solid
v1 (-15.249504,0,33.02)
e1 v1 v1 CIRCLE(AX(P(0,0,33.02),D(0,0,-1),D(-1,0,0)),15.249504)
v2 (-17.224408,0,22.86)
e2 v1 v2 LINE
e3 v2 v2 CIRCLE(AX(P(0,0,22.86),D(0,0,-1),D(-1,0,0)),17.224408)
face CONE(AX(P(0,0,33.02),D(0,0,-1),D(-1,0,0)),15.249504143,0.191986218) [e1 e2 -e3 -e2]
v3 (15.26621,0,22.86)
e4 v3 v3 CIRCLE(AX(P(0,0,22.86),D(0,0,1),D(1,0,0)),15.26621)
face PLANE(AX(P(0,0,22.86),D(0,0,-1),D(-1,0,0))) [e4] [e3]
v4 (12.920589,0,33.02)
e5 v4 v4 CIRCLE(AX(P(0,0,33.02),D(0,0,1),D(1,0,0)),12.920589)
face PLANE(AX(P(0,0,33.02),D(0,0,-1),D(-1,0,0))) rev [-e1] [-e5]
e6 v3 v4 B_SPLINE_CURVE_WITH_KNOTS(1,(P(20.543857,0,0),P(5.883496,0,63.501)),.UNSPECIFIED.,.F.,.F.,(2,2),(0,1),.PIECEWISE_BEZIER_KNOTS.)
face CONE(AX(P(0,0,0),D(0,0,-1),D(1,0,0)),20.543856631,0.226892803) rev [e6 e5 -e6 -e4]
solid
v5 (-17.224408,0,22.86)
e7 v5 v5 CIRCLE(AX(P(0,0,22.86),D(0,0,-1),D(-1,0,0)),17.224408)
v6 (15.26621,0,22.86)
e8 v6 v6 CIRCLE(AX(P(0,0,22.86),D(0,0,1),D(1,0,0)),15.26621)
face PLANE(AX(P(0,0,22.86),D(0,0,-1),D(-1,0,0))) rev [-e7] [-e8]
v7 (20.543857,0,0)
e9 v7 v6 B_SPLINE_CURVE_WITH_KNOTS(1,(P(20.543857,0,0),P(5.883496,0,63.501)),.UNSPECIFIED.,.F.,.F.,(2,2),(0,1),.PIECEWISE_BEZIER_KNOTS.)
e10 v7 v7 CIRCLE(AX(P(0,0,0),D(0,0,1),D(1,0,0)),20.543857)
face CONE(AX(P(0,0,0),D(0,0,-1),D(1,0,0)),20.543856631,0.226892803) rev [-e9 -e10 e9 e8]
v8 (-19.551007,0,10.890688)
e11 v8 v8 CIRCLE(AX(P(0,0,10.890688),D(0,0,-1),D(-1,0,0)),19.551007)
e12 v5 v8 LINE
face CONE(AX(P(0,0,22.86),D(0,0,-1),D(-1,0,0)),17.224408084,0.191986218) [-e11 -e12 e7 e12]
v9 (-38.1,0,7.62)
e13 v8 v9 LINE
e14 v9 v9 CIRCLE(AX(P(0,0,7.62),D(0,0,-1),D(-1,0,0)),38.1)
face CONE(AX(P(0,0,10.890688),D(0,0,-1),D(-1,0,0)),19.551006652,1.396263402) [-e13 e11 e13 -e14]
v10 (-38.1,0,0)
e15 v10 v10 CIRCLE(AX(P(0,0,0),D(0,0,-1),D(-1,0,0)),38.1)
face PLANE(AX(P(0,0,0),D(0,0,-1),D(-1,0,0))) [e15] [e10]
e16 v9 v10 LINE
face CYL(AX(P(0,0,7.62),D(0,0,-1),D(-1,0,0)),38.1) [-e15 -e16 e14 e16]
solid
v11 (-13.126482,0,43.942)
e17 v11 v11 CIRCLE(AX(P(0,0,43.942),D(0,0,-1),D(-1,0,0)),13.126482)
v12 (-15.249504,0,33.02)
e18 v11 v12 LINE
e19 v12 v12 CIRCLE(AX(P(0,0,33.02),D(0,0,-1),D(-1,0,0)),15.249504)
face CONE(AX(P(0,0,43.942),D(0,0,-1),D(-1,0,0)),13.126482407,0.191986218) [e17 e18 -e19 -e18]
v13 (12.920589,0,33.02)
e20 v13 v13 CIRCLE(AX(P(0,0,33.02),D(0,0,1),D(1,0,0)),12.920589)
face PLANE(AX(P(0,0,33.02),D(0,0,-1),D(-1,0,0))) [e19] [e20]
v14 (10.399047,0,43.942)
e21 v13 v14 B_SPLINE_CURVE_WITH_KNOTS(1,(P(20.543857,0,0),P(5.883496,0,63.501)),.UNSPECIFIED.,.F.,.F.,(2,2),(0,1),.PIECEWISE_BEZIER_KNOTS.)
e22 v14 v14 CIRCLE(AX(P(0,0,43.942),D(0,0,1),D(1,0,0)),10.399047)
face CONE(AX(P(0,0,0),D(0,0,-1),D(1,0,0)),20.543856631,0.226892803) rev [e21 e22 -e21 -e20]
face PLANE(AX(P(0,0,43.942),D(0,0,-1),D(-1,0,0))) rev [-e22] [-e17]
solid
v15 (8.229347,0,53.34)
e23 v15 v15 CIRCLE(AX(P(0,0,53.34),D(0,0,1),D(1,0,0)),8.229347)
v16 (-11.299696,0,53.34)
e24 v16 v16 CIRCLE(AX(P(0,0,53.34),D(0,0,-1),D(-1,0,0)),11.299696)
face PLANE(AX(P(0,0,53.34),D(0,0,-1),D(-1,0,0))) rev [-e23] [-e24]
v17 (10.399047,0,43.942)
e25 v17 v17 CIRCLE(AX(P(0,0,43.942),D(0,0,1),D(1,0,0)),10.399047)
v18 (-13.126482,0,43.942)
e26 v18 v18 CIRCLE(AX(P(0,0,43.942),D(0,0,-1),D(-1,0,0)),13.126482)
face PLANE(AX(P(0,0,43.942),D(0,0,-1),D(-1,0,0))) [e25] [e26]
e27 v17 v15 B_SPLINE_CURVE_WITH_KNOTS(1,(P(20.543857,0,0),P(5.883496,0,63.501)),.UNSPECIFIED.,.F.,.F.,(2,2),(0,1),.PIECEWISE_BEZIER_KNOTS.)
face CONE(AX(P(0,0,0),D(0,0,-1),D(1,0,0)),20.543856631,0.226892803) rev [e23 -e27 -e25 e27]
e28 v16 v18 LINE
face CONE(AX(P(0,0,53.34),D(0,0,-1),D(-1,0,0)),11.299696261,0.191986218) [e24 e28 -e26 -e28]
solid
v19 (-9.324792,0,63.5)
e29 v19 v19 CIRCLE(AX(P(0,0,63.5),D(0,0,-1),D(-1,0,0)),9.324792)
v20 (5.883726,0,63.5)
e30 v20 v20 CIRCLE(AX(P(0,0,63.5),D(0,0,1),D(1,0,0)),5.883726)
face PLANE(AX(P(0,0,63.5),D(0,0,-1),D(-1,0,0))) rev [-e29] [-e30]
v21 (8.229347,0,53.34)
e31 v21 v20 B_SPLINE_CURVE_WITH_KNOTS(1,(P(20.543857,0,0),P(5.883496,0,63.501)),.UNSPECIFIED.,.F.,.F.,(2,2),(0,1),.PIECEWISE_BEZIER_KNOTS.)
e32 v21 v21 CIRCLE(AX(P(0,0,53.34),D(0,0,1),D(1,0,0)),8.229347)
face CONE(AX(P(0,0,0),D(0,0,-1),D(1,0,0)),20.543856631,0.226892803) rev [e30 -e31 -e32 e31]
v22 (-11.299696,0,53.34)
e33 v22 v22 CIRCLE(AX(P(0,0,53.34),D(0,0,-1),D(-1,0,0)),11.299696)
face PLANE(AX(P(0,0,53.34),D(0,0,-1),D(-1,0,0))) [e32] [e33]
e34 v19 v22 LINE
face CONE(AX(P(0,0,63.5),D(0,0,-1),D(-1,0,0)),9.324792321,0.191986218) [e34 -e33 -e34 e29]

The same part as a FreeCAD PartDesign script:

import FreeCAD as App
import Part
import Sketcher
from FreeCAD import Vector
Q = App.Units.Quantity


def add_polygon(sketch, points):
    """Adds a closed chain of lines whose ends are joined by coincident constraints."""
    first, n = sketch.GeometryCount, len(points)
    for a, b in zip(points, points[1:] + points[:1]):
        sketch.addGeometry(Part.LineSegment(App.Vector(*a, 0), App.Vector(*b, 0)), False)
    for i in range(n):
        sketch.addConstraint(Sketcher.Constraint("Coincident", first + i, 2, first + (i + 1) % n, 1))

doc = App.newDocument("Part")
params = doc.addObject("Spreadsheet::Sheet", "Params")
for row, (alias, value) in enumerate([
    ("sketch1_height", "0.4 in"),
    ("revolution_angle", "360 deg"),
    ("sketch2_height", "0.37 in"),
    ("revolution2_angle", "360 deg"),
    ("sketch3_height", "0.43 in"),
    ("revolution3_angle", "360 deg"),
    ("sketch4_height", "0.4 in"),
    ("revolution4_angle", "360 deg"),
    ("sketch5_width", "1.5 in"),
    ("sketch5_height", "0.3 in"),
    ("sketch5_height2", "0.9 in"),
    ("revolution5_angle", "360 deg"),
    ("pad1_length", "63.501 mm"),
    ("pad1_taper", "-13 deg"),
], start=1):
    params.set(f"A{row}", alias)
    params.set(f"B{row}", "=" + value)
    params.setAlias(f"B{row}", alias)

body = doc.addObject("PartDesign::Body", "Body")

# Sketch on XZ plane
sketch1 = doc.addObject("Sketcher::SketchObject", "Sketch")
body.addObject(sketch1)
sketch1.AttachmentSupport = (doc.XZ_Plane, [""])
sketch1.MapMode = "FlatFace"
add_polygon(sketch1, [(-11.299696, 53.34), (0, 53.34), (0, 63.5), (-9.324792, 63.5)])  # lines 0-3
sketch1.addConstraint([
    Sketcher.Constraint("Horizontal", 0),
    Sketcher.Constraint("Vertical", 1),
    Sketcher.Constraint("Horizontal", 2),
    Sketcher.Constraint("PointOnObject", 0, 2, -2),
    Sketcher.Constraint("DistanceY", 1, 1, 1, 2, Q("0.4 in")),
    Sketcher.Constraint("Angle", 3, Q("-101 deg")),
    Sketcher.Constraint("DistanceY", -1, 1, 0, 2, Q("2.1 in")),
    Sketcher.Constraint("DistanceX", 0, 1, 0, 2, Q("11.299696 mm")),
])
sketch1.setExpression("Constraints[8]", "Params.sketch1_height")
revolution = doc.addObject("PartDesign::Revolution", "Revolution")
body.addObject(revolution)
revolution.Profile = sketch1
revolution.ReferenceAxis = (sketch1, ["V_Axis"])
revolution.setExpression("Angle", "Params.revolution_angle")
body2 = doc.addObject("PartDesign::Body", "Body001")

# Sketch on XZ plane
sketch2 = doc.addObject("Sketcher::SketchObject", "Sketch001")
body2.addObject(sketch2)
sketch2.AttachmentSupport = (doc.getObject("XZ_Plane001"), [""])
sketch2.MapMode = "FlatFace"
add_polygon(sketch2, [(-13.126482, 43.942), (0, 43.942), (0, 53.34), (-11.299696, 53.34)])  # lines 0-3
sketch2.addConstraint([
    Sketcher.Constraint("Horizontal", 0),
    Sketcher.Constraint("Vertical", 1),
    Sketcher.Constraint("Horizontal", 2),
    Sketcher.Constraint("PointOnObject", 0, 2, -2),
    Sketcher.Constraint("Angle", 3, Q("-101 deg")),
    Sketcher.Constraint("DistanceY", 1, 1, 1, 2, Q("0.37 in")),
    Sketcher.Constraint("DistanceY", -1, 1, 1, 2, Q("2.1 in")),
    Sketcher.Constraint("DistanceX", 0, 1, 0, 2, Q("13.126482 mm")),
])
sketch2.setExpression("Constraints[9]", "Params.sketch2_height")
revolution2 = doc.addObject("PartDesign::Revolution", "Revolution001")
body2.addObject(revolution2)
revolution2.Profile = sketch2
revolution2.ReferenceAxis = (sketch2, ["V_Axis"])
revolution2.setExpression("Angle", "Params.revolution2_angle")
body3 = doc.addObject("PartDesign::Body", "Body002")

# Sketch on XZ plane
sketch3 = doc.addObject("Sketcher::SketchObject", "Sketch002")
body3.addObject(sketch3)
sketch3.AttachmentSupport = (doc.getObject("XZ_Plane002"), [""])
sketch3.MapMode = "FlatFace"
add_polygon(sketch3, [(-15.249504, 33.02), (0, 33.02), (0, 43.942), (-13.126482, 43.942)])  # lines 0-3
sketch3.addConstraint([
    Sketcher.Constraint("Horizontal", 0),
    Sketcher.Constraint("Vertical", 1),
    Sketcher.Constraint("Horizontal", 2),
    Sketcher.Constraint("PointOnObject", 0, 2, -2),
    Sketcher.Constraint("Angle", 3, Q("-101 deg")),
    Sketcher.Constraint("DistanceY", 1, 1, 1, 2, Q("0.43 in")),
    Sketcher.Constraint("DistanceY", -1, 1, 0, 2, Q("1.3 in")),
    Sketcher.Constraint("DistanceX", 0, 1, 0, 2, Q("15.249504 mm")),
])
sketch3.setExpression("Constraints[9]", "Params.sketch3_height")
revolution3 = doc.addObject("PartDesign::Revolution", "Revolution002")
body3.addObject(revolution3)
revolution3.Profile = sketch3
revolution3.ReferenceAxis = (sketch3, ["V_Axis"])
revolution3.setExpression("Angle", "Params.revolution3_angle")
body4 = doc.addObject("PartDesign::Body", "Body003")

# Sketch on XZ plane
sketch4 = doc.addObject("Sketcher::SketchObject", "Sketch003")
body4.addObject(sketch4)
sketch4.AttachmentSupport = (doc.getObject("XZ_Plane003"), [""])
sketch4.MapMode = "FlatFace"
add_polygon(sketch4, [(-17.224408, 22.86), (0, 22.86), (0, 33.02), (-15.249504, 33.02)])  # lines 0-3
sketch4.addConstraint([
    Sketcher.Constraint("Horizontal", 0),
    Sketcher.Constraint("Vertical", 1),
    Sketcher.Constraint("Horizontal", 2),
    Sketcher.Constraint("PointOnObject", 0, 2, -2),
    Sketcher.Constraint("DistanceY", 1, 1, 1, 2, Q("0.4 in")),
    Sketcher.Constraint("Angle", 3, Q("-101 deg")),
    Sketcher.Constraint("DistanceY", -1, 1, 0, 2, Q("0.9 in")),
    Sketcher.Constraint("DistanceX", 0, 1, 0, 2, Q("17.224408 mm")),
])
sketch4.setExpression("Constraints[8]", "Params.sketch4_height")
revolution4 = doc.addObject("PartDesign::Revolution", "Revolution003")
body4.addObject(revolution4)
revolution4.Profile = sketch4
revolution4.ReferenceAxis = (sketch4, ["V_Axis"])
revolution4.setExpression("Angle", "Params.revolution4_angle")
body5 = doc.addObject("PartDesign::Body", "Body004")

# Sketch on XZ plane
sketch5 = doc.addObject("Sketcher::SketchObject", "Sketch004")
body5.addObject(sketch5)
sketch5.AttachmentSupport = (doc.getObject("XZ_Plane004"), [""])
sketch5.MapMode = "FlatFace"
add_polygon(sketch5, [(-38.1, 7.62), (-38.1, 0), (0, 0), (0, 22.86), (-17.224408, 22.86), (-19.551007, 10.890688)])  # lines 0-5
sketch5.addConstraint([
    Sketcher.Constraint("Vertical", 0),
    Sketcher.Constraint("Horizontal", 1),
    Sketcher.Constraint("Vertical", 2),
    Sketcher.Constraint("Horizontal", 3),
    Sketcher.Constraint("Coincident", 1, 2, -1, 1),
    Sketcher.Constraint("DistanceX", 1, 1, 1, 2, Q("1.5 in")),
    Sketcher.Constraint("DistanceY", 0, 2, 0, 1, Q("0.3 in")),
    Sketcher.Constraint("DistanceY", 2, 1, 2, 2, Q("0.9 in")),
    Sketcher.Constraint("Angle", 4, Q("-101 deg")),
    Sketcher.Constraint("Angle", 5, Q("-170 deg")),
    Sketcher.Constraint("DistanceX", 3, 2, 3, 1, Q("17.224408 mm")),
])
sketch5.setExpression("Constraints[11]", "Params.sketch5_width")
sketch5.setExpression("Constraints[12]", "Params.sketch5_height")
sketch5.setExpression("Constraints[13]", "Params.sketch5_height2")
revolution5 = doc.addObject("PartDesign::Revolution", "Revolution004")
body5.addObject(revolution5)
revolution5.Profile = sketch5
revolution5.ReferenceAxis = (sketch5, ["V_Axis"])
revolution5.setExpression("Angle", "Params.revolution5_angle")
body6 = doc.addObject("PartDesign::Body", "Body005")

# Sketch on XY plane
sketch6 = doc.addObject("Sketcher::SketchObject", "Sketch005")
body6.addObject(sketch6)
sketch6.AttachmentSupport = (doc.getObject("XY_Plane005"), [""])
sketch6.MapMode = "FlatFace"
sketch6.addGeometry(Part.Circle(Vector(0, 0, 0), Vector(0, 0, 1), 20.543857), False)
sketch6.addConstraint([
    Sketcher.Constraint("Coincident", 0, 3, -1, 1),
    Sketcher.Constraint("Diameter", 0, Q("41.087713 mm")),
])
pad1 = doc.addObject("PartDesign::Pad", "Pad")
body6.addObject(pad1)
pad1.Profile = sketch6
pad1.setExpression("Length", "Params.pad1_length")
pad1.setExpression("TaperAngle", "Params.pad1_taper")
doc.recompute()

body7 = doc.addObject("PartDesign::Body", "Body006")
body7.BaseFeature = body6
boolean = doc.addObject("PartDesign::Boolean", "Boolean")
body.addObject(boolean)
boolean.Type = "Cut"
boolean.addObjects([body7])
doc.recompute()

body8 = doc.addObject("PartDesign::Body", "Body007")
body8.BaseFeature = body6
boolean2 = doc.addObject("PartDesign::Boolean", "Boolean001")
body2.addObject(boolean2)
boolean2.Type = "Cut"
boolean2.addObjects([body8])
doc.recompute()

body9 = doc.addObject("PartDesign::Body", "Body008")
body9.BaseFeature = body6
boolean3 = doc.addObject("PartDesign::Boolean", "Boolean002")
body3.addObject(boolean3)
boolean3.Type = "Cut"
boolean3.addObjects([body9])
doc.recompute()

body10 = doc.addObject("PartDesign::Body", "Body009")
body10.BaseFeature = body6
boolean4 = doc.addObject("PartDesign::Boolean", "Boolean003")
body4.addObject(boolean4)
boolean4.Type = "Cut"
boolean4.addObjects([body10])
doc.recompute()

boolean5 = doc.addObject("PartDesign::Boolean", "Boolean004")
body5.addObject(boolean5)
boolean5.Type = "Cut"
boolean5.addObjects([body6])

doc.recompute()
